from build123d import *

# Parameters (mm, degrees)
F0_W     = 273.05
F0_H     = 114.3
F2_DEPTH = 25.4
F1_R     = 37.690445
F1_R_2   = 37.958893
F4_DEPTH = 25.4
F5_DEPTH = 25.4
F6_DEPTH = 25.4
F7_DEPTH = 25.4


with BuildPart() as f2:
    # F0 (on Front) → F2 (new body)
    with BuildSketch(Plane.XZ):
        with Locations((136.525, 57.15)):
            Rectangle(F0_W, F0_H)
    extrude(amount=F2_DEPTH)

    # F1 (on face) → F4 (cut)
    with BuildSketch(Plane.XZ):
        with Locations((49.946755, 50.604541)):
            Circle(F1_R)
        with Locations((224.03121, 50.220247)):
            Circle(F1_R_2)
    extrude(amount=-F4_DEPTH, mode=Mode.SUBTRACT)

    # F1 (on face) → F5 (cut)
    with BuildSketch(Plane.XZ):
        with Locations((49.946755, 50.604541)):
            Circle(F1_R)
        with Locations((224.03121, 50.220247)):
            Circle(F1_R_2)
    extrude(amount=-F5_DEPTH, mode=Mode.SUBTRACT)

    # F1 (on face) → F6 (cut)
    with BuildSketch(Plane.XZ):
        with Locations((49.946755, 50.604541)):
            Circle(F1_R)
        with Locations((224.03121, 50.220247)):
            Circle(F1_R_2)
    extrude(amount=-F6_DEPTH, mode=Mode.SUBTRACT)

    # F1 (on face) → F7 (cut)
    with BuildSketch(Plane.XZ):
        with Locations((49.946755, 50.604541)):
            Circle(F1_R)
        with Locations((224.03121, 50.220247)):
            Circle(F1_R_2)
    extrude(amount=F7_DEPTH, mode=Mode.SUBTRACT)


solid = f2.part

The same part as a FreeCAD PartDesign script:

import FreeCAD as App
import Part
import Sketcher

V = App.Vector
Q = App.Units.Quantity


def add_polygon(sketch, points):
    """Adds a closed chain of lines whose ends are joined by coincident constraints."""
    first, n = sketch.GeometryCount, len(points)
    for a, b in zip(points, points[1:] + points[:1]):
        sketch.addGeometry(Part.LineSegment(App.Vector(*a, 0), App.Vector(*b, 0)), False)
    for i in range(n):
        sketch.addConstraint(Sketcher.Constraint("Coincident", first + i, 2, first + (i + 1) % n, 1))

doc = App.newDocument("Part")
body = doc.addObject("PartDesign::Body", "Body")

sketch1 = body.newObject("Sketcher::SketchObject", "Sketch")
sketch1.AttachmentSupport = (doc.getObject("XZ_Plane"), [""])
sketch1.MapMode = "FlatFace"
add_polygon(sketch1, [(0, 114), (0, 0), (273, 0), (273, 114)])
sketch1.addConstraint([
    Sketcher.Constraint("Vertical", 0),
    Sketcher.Constraint("Horizontal", 1),
    Sketcher.Constraint("Vertical", 2),
    Sketcher.Constraint("Horizontal", 3),
    Sketcher.Constraint("Coincident", 0, 2, -1, 1),
    Sketcher.Constraint("DistanceY", 0, 2, 0, 1, Q("4.5 in")),
    Sketcher.Constraint("DistanceX", 1, 1, 1, 2, Q("10.75 in")),
])
pad1 = body.newObject("PartDesign::Pad", "Pad")
pad1.Profile = sketch1
pad1.Length = Q("1 in")

sketch2 = body.newObject("Sketcher::SketchObject", "Sketch001")
sketch2.AttachmentSupport = (doc.getObject("XZ_Plane"), [""])
sketch2.MapMode = "FlatFace"
sketch2.addGeometry([
    Part.Circle(V(50, 51, 0), V(0, 0, 1), 38),
    Part.Circle(V(224, 50, 0), V(0, 0, 1), 38),
], False)
sketch2.addConstraint([
    Sketcher.Constraint("Diameter", 0, Q("75.38089 mm")),
    Sketcher.Constraint("Diameter", 1, Q("75.917786 mm")),
    Sketcher.Constraint("DistanceY", -1, 1, 0, 3, Q("50.604541 mm")),
    Sketcher.Constraint("DistanceX", -1, 1, 1, 3, Q("224.03121 mm")),
    Sketcher.Constraint("DistanceX", -1, 1, 0, 3, Q("49.946755 mm")),
    Sketcher.Constraint("DistanceY", -1, 1, 1, 3, Q("50.220247 mm")),
])
pocket1 = body.newObject("PartDesign::Pocket", "Pocket")
pocket1.Profile = sketch2
pocket1.Length = Q("1 in")

sketch3 = body.newObject("Sketcher::SketchObject", "Sketch002")
sketch3.AttachmentSupport = (doc.getObject("XZ_Plane"), [""])
sketch3.MapMode = "FlatFace"
sketch3.addGeometry([
    Part.Circle(V(50, 51, 0), V(0, 0, 1), 38),
    Part.Circle(V(224, 50, 0), V(0, 0, 1), 38),
], False)
sketch3.addConstraint([
    Sketcher.Constraint("Diameter", 0, Q("75.38089 mm")),
    Sketcher.Constraint("Diameter", 1, Q("75.917786 mm")),
    Sketcher.Constraint("DistanceY", -1, 1, 0, 3, Q("50.604541 mm")),
    Sketcher.Constraint("DistanceX", -1, 1, 1, 3, Q("224.03121 mm")),
    Sketcher.Constraint("DistanceX", -1, 1, 0, 3, Q("49.946755 mm")),
    Sketcher.Constraint("DistanceY", -1, 1, 1, 3, Q("50.220247 mm")),
])
pocket2 = body.newObject("PartDesign::Pocket", "Pocket001")
pocket2.Profile = sketch3
pocket2.Length = Q("1 in")

sketch4 = body.newObject("Sketcher::SketchObject", "Sketch003")
sketch4.AttachmentSupport = (doc.getObject("XZ_Plane"), [""])
sketch4.MapMode = "FlatFace"
sketch4.addGeometry([
    Part.Circle(V(50, 51, 0), V(0, 0, 1), 38),
    Part.Circle(V(224, 50, 0), V(0, 0, 1), 38),
], False)
sketch4.addConstraint([
    Sketcher.Constraint("Diameter", 0, Q("75.38089 mm")),
    Sketcher.Constraint("Diameter", 1, Q("75.917786 mm")),
    Sketcher.Constraint("DistanceY", -1, 1, 0, 3, Q("50.604541 mm")),
    Sketcher.Constraint("DistanceX", -1, 1, 1, 3, Q("224.03121 mm")),
    Sketcher.Constraint("DistanceX", -1, 1, 0, 3, Q("49.946755 mm")),
    Sketcher.Constraint("DistanceY", -1, 1, 1, 3, Q("50.220247 mm")),
])
pocket3 = body.newObject("PartDesign::Pocket", "Pocket002")
pocket3.Profile = sketch4
pocket3.Length = Q("1 in")

sketch5 = body.newObject("Sketcher::SketchObject", "Sketch004")
sketch5.AttachmentSupport = (doc.getObject("XZ_Plane"), [""])
sketch5.MapMode = "FlatFace"
sketch5.addGeometry([
    Part.Circle(V(50, 51, 0), V(0, 0, 1), 38),
    Part.Circle(V(224, 50, 0), V(0, 0, 1), 38),
], False)
sketch5.addConstraint([
    Sketcher.Constraint("Diameter", 0, Q("75.38089 mm")),
    Sketcher.Constraint("Diameter", 1, Q("75.917786 mm")),
    Sketcher.Constraint("DistanceY", -1, 1, 0, 3, Q("50.604541 mm")),
    Sketcher.Constraint("DistanceX", -1, 1, 1, 3, Q("224.03121 mm")),
    Sketcher.Constraint("DistanceX", -1, 1, 0, 3, Q("49.946755 mm")),
    Sketcher.Constraint("DistanceY", -1, 1, 1, 3, Q("50.220247 mm")),
])
pocket4 = body.newObject("PartDesign::Pocket", "Pocket003")
pocket4.Profile = sketch5
pocket4.Length = Q("1 in")
pocket4.Reversed = True

doc.recompute()
